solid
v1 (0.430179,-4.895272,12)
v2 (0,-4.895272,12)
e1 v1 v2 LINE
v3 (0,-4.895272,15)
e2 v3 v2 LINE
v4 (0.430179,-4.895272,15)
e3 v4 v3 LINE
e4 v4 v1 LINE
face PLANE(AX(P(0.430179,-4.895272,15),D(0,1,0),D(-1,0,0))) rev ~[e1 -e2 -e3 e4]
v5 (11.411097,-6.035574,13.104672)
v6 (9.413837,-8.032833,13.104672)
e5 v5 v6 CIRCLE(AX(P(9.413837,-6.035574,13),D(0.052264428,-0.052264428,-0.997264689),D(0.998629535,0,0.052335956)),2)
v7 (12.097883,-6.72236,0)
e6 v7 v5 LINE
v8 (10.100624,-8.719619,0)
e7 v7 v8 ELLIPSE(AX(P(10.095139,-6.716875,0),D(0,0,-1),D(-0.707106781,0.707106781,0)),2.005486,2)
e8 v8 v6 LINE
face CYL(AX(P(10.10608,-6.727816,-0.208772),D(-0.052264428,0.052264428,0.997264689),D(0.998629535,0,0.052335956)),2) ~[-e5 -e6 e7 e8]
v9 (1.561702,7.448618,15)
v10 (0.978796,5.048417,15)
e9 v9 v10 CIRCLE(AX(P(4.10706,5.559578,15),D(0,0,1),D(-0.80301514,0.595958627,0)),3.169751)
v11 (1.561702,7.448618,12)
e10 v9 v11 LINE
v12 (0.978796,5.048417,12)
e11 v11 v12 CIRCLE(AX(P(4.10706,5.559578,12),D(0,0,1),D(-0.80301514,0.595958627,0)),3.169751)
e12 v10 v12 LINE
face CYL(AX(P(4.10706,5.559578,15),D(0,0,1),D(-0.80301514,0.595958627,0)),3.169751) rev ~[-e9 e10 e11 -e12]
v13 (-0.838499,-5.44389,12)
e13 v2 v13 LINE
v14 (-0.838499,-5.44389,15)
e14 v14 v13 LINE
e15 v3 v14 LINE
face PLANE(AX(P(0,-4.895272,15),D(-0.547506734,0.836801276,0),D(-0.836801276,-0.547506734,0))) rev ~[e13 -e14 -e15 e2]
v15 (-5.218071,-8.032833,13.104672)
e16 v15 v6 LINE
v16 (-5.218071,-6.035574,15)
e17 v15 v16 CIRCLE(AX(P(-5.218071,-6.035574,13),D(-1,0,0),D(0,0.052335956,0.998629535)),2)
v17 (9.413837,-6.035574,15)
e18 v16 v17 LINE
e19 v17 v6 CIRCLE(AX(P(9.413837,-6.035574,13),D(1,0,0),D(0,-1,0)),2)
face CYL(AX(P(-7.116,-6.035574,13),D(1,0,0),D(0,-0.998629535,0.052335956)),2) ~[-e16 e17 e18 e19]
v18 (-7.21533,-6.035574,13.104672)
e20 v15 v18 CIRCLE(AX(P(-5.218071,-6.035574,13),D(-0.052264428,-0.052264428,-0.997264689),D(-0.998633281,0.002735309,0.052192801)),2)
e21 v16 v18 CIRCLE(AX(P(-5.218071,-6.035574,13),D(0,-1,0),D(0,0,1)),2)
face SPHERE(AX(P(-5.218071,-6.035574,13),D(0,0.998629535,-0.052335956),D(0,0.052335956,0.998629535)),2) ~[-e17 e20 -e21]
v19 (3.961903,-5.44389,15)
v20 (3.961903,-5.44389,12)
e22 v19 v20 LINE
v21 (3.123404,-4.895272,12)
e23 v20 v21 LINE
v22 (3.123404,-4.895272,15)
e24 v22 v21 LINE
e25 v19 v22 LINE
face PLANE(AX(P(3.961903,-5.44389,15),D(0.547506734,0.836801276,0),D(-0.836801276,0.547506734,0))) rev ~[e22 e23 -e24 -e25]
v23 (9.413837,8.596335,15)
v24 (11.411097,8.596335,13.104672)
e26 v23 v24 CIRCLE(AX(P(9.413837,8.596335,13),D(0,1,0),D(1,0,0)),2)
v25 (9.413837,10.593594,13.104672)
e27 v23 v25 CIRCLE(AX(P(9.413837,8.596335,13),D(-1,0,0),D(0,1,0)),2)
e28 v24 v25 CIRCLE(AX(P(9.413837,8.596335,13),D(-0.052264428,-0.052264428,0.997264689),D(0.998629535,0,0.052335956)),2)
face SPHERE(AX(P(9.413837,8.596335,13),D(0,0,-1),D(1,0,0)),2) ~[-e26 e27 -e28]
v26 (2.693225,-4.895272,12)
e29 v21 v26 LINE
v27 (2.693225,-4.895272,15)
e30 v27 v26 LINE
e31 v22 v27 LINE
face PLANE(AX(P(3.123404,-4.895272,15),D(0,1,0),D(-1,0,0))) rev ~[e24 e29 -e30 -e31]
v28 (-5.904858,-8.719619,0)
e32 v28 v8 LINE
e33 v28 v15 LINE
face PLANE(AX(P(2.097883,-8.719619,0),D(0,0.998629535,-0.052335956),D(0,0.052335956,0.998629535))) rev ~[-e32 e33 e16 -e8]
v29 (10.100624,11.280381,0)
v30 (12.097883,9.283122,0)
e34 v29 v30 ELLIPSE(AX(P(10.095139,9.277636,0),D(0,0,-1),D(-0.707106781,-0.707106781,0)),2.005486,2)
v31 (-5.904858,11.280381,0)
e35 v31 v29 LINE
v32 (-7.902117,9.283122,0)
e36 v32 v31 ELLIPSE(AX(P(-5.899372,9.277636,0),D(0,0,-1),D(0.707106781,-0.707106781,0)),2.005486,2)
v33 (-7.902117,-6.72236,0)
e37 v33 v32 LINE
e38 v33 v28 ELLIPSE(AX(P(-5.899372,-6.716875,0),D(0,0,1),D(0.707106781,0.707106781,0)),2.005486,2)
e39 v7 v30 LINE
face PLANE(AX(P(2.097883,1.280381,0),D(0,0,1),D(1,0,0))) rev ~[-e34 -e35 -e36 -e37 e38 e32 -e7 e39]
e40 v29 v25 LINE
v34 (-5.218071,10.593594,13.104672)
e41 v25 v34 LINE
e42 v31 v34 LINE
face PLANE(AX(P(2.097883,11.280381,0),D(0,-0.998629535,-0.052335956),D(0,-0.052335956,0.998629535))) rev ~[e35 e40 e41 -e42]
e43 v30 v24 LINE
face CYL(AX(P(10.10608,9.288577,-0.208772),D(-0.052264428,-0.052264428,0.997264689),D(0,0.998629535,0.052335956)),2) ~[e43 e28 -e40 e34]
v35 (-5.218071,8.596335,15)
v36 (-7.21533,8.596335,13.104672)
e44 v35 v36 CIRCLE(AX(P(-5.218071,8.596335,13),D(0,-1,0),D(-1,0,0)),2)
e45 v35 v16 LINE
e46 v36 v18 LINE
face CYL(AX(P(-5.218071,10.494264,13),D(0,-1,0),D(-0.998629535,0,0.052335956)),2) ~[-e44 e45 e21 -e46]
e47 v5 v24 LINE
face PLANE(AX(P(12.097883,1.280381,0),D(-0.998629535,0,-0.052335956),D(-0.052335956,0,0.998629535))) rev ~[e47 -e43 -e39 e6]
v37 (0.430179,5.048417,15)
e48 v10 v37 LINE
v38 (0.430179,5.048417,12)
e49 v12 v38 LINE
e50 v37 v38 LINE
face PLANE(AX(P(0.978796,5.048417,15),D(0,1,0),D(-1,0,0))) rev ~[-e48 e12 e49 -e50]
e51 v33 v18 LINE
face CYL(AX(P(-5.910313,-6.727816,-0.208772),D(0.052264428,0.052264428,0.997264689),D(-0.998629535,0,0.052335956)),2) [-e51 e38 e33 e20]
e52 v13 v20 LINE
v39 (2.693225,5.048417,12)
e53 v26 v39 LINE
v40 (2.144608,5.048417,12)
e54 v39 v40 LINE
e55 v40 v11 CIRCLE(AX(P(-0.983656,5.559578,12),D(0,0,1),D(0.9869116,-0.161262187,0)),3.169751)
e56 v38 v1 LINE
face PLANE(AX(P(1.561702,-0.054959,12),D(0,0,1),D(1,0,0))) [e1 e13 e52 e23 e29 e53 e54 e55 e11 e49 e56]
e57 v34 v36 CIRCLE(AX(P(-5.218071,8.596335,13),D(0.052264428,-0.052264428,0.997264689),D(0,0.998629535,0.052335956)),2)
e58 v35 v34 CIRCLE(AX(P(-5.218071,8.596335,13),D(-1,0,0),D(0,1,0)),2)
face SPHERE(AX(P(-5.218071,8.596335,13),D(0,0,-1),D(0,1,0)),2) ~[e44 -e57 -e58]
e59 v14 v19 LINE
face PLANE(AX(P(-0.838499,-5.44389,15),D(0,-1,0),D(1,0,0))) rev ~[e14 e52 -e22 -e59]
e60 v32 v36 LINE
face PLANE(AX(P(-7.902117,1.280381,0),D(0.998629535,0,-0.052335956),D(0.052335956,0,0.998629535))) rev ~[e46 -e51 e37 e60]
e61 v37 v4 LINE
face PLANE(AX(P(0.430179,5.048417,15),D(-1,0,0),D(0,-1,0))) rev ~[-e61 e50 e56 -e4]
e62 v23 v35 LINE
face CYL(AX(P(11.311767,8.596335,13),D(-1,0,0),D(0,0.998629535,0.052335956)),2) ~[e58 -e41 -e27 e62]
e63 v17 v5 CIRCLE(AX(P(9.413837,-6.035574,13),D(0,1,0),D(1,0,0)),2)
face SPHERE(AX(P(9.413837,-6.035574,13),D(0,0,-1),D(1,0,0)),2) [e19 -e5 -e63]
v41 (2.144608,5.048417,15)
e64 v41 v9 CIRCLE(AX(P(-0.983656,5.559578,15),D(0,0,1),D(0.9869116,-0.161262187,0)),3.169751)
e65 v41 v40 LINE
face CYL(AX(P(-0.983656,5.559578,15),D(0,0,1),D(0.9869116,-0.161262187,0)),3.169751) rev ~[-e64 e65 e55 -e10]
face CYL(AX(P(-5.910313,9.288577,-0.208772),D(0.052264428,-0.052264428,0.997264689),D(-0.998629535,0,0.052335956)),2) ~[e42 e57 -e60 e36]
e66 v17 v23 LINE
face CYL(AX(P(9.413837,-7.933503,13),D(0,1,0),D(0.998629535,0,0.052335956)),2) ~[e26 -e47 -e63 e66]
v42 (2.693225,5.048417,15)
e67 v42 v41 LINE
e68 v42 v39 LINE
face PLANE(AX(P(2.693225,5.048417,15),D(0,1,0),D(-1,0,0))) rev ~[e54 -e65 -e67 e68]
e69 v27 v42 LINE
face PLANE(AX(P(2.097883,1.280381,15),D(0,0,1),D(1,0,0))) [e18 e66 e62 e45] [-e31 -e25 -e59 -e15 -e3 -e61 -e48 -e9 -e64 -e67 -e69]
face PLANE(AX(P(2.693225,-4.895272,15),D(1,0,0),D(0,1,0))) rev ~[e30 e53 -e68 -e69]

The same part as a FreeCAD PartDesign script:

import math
import FreeCAD as App
import Part
import Sketcher
from FreeCAD import Vector


def edges_at(feature, points):
    """Names of the edges that pass closest to the given points."""
    edges = feature.Shape.Edges
    near = lambda p: min(range(len(edges)), key=lambda i: edges[i].distToShape(Part.Vertex(*p))[0])
    return sorted({f"Edge{near(p) + 1}" for p in points})


def add_polygon(sketch, points):
    """Adds a closed chain of lines whose ends are joined by coincident constraints."""
    first, n = sketch.GeometryCount, len(points)
    for a, b in zip(points, points[1:] + points[:1]):
        sketch.addGeometry(Part.LineSegment(App.Vector(*a, 0), App.Vector(*b, 0)), False)
    for i in range(n):
        sketch.addConstraint(Sketcher.Constraint("Coincident", first + i, 2, first + (i + 1) % n, 1))

doc = App.newDocument("Part")
body = doc.addObject("PartDesign::Body", "Body")

sketch1 = body.newObject("Sketcher::SketchObject", "Sketch")
sketch1.AttachmentSupport = (doc.getObject("XY_Plane"), [""])
sketch1.MapMode = "FlatFace"
add_polygon(sketch1, [(-9, 12), (-9, -8), (11, -8), (11, 12)])
sketch1.addConstraint(Sketcher.Constraint("Vertical", 0))
sketch1.addConstraint(Sketcher.Constraint("Horizontal", 1))
sketch1.addConstraint(Sketcher.Constraint("Vertical", 2))
sketch1.addConstraint(Sketcher.Constraint("Horizontal", 3))
sketch1.addConstraint(Sketcher.Constraint("Equal", 3, 0))
sketch1.addConstraint(Sketcher.Constraint("DistanceX", 1, 1, 1, 2, 20.0))
sketch1.addConstraint(Sketcher.Constraint("DistanceX", 0, 2, -1, 1, 8.644))
sketch1.addConstraint(Sketcher.Constraint("DistanceY", 0, 2, -1, 1, 7.996336))
pad1 = body.newObject("PartDesign::Pad", "Pad")
pad1.Profile = sketch1
pad1.Length = 15
pad1.TaperAngle = -3
doc.recompute()

fillet = body.newObject("PartDesign::Fillet", "Fillet")
fillet.Base = (pad1, edges_at(pad1, [
    (1.356, 11.218, 15),
    (10.963, 11.611, 7.5),
    (-8.251, 11.611, 7.5),
    (10.57, 2.004, 15),
    (10.963, -7.603, 7.5),
    (-8.251, -7.603, 7.5),
    (-7.858, 2.004, 15),
    (1.356, -7.21, 15),
]))
fillet.Radius = 2
body2 = doc.addObject("PartDesign::Body", "Body001")

sketch2 = body2.newObject("Sketcher::SketchObject", "Sketch001")
sketch2.AttachmentSupport = (doc.getObject("XY_Plane001"), [""])
sketch2.MapMode = "FlatFace"
add_polygon(sketch2, [(-8, 11), (-8, -9), (12, -9), (12, 11)])
sketch2.addConstraint(Sketcher.Constraint("Vertical", 0))
sketch2.addConstraint(Sketcher.Constraint("Horizontal", 1))
sketch2.addConstraint(Sketcher.Constraint("Vertical", 2))
sketch2.addConstraint(Sketcher.Constraint("Horizontal", 3))
sketch2.addConstraint(Sketcher.Constraint("Equal", 3, 0))
sketch2.addConstraint(Sketcher.Constraint("DistanceX", 1, 1, 1, 2, 20.0))
sketch2.addConstraint(Sketcher.Constraint("DistanceY", 0, 2, -1, 1, 8.719619))
sketch2.addConstraint(Sketcher.Constraint("DistanceX", 0, 2, -1, 1, 7.902117))
pad2 = body2.newObject("PartDesign::Pad", "Pad001")
pad2.Profile = sketch2
pad2.Length = 15
pad2.TaperAngle = -3
doc.recompute()

fillet2 = body2.newObject("PartDesign::Fillet", "Fillet001")
fillet2.Base = (pad2, edges_at(pad2, [
    (-7.509, 10.887, 7.5),
    (11.705, 10.887, 7.5),
    (11.705, -8.327, 7.5),
    (11.312, 1.28, 15),
    (2.098, 10.494, 15),
    (-7.116, 1.28, 15),
    (2.098, -7.934, 15),
    (-7.509, -8.327, 7.5),
]))
fillet2.Radius = 2

sketch3 = body2.newObject("Sketcher::SketchObject", "Sketch002")
sketch3.AttachmentSupport = (doc.getObject("XY_Plane001"), [""])
sketch3.MapMode = "FlatFace"
sketch3.AttachmentOffset = App.Placement(Vector(0, 0, 15), App.Rotation())
sketch3.addGeometry(Part.LineSegment(Vector(-0.84, -5.44, 0), Vector(3.96, -5.44, 0)), False)
sketch3.addGeometry(Part.LineSegment(Vector(3.96, -5.44, 0), Vector(3.12, -4.9, 0)), False)
sketch3.addGeometry(Part.LineSegment(Vector(3.12, -4.9, 0), Vector(2.69, -4.9, 0)), False)
sketch3.addGeometry(Part.LineSegment(Vector(2.69, -4.9, 0), Vector(2.69, 5.05, 0)), False)
sketch3.addGeometry(Part.LineSegment(Vector(2.69, 5.05, 0), Vector(2.14, 5.05, 0)), False)
sketch3.addGeometry(Part.ArcOfCircle(Part.Circle(Vector(-0.98, 5.56, 0), Vector(0, 0, 1), 3.17), math.radians(-9), math.radians(37)), False)
sketch3.addGeometry(Part.ArcOfCircle(Part.Circle(Vector(4.11, 5.56, 0), Vector(0, 0, 1), 3.17), math.radians(143), math.radians(189)), False)
sketch3.addGeometry(Part.LineSegment(Vector(0.98, 5.05, 0), Vector(0.43, 5.05, 0)), False)
sketch3.addGeometry(Part.LineSegment(Vector(0.43, 5.05, 0), Vector(0.43, -4.9, 0)), False)
sketch3.addGeometry(Part.LineSegment(Vector(0.43, -4.9, 0), Vector(0, -4.9, 0)), False)
sketch3.addGeometry(Part.LineSegment(Vector(0, -4.9, 0), Vector(-0.84, -5.44, 0)), False)
sketch3.addConstraint(Sketcher.Constraint("Coincident", 0, 2, 1, 1))
sketch3.addConstraint(Sketcher.Constraint("Coincident", 1, 2, 2, 1))
sketch3.addConstraint(Sketcher.Constraint("Coincident", 2, 2, 3, 1))
sketch3.addConstraint(Sketcher.Constraint("Coincident", 3, 2, 4, 1))
sketch3.addConstraint(Sketcher.Constraint("Coincident", 4, 2, 5, 1))
sketch3.addConstraint(Sketcher.Constraint("Coincident", 5, 2, 6, 1))
sketch3.addConstraint(Sketcher.Constraint("Coincident", 6, 2, 7, 1))
sketch3.addConstraint(Sketcher.Constraint("Coincident", 7, 2, 8, 1))
sketch3.addConstraint(Sketcher.Constraint("Coincident", 8, 2, 9, 1))
sketch3.addConstraint(Sketcher.Constraint("Coincident", 9, 2, 10, 1))
sketch3.addConstraint(Sketcher.Constraint("Coincident", 10, 2, 0, 1))
sketch3.addConstraint(Sketcher.Constraint("Horizontal", 0))
sketch3.addConstraint(Sketcher.Constraint("Horizontal", 2))
sketch3.addConstraint(Sketcher.Constraint("Vertical", 3))
sketch3.addConstraint(Sketcher.Constraint("Horizontal", 4))
sketch3.addConstraint(Sketcher.Constraint("Horizontal", 7))
sketch3.addConstraint(Sketcher.Constraint("Vertical", 8))
sketch3.addConstraint(Sketcher.Constraint("Horizontal", 9))
sketch3.addConstraint(Sketcher.Constraint("Equal", 5, 6))
sketch3.addConstraint(Sketcher.Constraint("PointOnObject", 9, 2, -2))
sketch3.addConstraint(Sketcher.Constraint("Horizontal", 5, 3, 6, 3))
sketch3.addConstraint(Sketcher.Constraint("Horizontal", 4, 2, 6, 2))
sketch3.addConstraint(Sketcher.Constraint("Horizontal", 2, 2, 8, 2))
sketch3.addConstraint(Sketcher.Constraint("Equal", 4, 7))
sketch3.addConstraint(Sketcher.Constraint("Equal", 2, 9))
sketch3.addConstraint(Sketcher.Constraint("Equal", 1, 10))
sketch3.addConstraint(Sketcher.Constraint("Radius", 5, 3.169751))
sketch3.addConstraint(Sketcher.Constraint("DistanceX", 0, 1, 0, 2, 4.800402))
sketch3.addConstraint(Sketcher.Constraint("DistanceX", 2, 2, 2, 1, 0.430179))
sketch3.addConstraint(Sketcher.Constraint("DistanceY", 3, 1, 3, 2, 9.943689))
sketch3.addConstraint(Sketcher.Constraint("DistanceX", -1, 1, 5, 2, 1.561702))
sketch3.addConstraint(Sketcher.Constraint("DistanceY", 4, 2, 5, 2, 2.400201))
sketch3.addConstraint(Sketcher.Constraint("Distance", 1, 1.002029))
sketch3.addConstraint(Sketcher.Constraint("DistanceX", 4, 2, 4, 1, 0.548617))
sketch3.addConstraint(Sketcher.Constraint("DistanceY", 0, 2, -1, 1, 5.44389))
pocket1 = body2.newObject("PartDesign::Pocket", "Pocket")
pocket1.Profile = sketch3
pocket1.Length = 3
body.Visibility = False

doc.recompute()
